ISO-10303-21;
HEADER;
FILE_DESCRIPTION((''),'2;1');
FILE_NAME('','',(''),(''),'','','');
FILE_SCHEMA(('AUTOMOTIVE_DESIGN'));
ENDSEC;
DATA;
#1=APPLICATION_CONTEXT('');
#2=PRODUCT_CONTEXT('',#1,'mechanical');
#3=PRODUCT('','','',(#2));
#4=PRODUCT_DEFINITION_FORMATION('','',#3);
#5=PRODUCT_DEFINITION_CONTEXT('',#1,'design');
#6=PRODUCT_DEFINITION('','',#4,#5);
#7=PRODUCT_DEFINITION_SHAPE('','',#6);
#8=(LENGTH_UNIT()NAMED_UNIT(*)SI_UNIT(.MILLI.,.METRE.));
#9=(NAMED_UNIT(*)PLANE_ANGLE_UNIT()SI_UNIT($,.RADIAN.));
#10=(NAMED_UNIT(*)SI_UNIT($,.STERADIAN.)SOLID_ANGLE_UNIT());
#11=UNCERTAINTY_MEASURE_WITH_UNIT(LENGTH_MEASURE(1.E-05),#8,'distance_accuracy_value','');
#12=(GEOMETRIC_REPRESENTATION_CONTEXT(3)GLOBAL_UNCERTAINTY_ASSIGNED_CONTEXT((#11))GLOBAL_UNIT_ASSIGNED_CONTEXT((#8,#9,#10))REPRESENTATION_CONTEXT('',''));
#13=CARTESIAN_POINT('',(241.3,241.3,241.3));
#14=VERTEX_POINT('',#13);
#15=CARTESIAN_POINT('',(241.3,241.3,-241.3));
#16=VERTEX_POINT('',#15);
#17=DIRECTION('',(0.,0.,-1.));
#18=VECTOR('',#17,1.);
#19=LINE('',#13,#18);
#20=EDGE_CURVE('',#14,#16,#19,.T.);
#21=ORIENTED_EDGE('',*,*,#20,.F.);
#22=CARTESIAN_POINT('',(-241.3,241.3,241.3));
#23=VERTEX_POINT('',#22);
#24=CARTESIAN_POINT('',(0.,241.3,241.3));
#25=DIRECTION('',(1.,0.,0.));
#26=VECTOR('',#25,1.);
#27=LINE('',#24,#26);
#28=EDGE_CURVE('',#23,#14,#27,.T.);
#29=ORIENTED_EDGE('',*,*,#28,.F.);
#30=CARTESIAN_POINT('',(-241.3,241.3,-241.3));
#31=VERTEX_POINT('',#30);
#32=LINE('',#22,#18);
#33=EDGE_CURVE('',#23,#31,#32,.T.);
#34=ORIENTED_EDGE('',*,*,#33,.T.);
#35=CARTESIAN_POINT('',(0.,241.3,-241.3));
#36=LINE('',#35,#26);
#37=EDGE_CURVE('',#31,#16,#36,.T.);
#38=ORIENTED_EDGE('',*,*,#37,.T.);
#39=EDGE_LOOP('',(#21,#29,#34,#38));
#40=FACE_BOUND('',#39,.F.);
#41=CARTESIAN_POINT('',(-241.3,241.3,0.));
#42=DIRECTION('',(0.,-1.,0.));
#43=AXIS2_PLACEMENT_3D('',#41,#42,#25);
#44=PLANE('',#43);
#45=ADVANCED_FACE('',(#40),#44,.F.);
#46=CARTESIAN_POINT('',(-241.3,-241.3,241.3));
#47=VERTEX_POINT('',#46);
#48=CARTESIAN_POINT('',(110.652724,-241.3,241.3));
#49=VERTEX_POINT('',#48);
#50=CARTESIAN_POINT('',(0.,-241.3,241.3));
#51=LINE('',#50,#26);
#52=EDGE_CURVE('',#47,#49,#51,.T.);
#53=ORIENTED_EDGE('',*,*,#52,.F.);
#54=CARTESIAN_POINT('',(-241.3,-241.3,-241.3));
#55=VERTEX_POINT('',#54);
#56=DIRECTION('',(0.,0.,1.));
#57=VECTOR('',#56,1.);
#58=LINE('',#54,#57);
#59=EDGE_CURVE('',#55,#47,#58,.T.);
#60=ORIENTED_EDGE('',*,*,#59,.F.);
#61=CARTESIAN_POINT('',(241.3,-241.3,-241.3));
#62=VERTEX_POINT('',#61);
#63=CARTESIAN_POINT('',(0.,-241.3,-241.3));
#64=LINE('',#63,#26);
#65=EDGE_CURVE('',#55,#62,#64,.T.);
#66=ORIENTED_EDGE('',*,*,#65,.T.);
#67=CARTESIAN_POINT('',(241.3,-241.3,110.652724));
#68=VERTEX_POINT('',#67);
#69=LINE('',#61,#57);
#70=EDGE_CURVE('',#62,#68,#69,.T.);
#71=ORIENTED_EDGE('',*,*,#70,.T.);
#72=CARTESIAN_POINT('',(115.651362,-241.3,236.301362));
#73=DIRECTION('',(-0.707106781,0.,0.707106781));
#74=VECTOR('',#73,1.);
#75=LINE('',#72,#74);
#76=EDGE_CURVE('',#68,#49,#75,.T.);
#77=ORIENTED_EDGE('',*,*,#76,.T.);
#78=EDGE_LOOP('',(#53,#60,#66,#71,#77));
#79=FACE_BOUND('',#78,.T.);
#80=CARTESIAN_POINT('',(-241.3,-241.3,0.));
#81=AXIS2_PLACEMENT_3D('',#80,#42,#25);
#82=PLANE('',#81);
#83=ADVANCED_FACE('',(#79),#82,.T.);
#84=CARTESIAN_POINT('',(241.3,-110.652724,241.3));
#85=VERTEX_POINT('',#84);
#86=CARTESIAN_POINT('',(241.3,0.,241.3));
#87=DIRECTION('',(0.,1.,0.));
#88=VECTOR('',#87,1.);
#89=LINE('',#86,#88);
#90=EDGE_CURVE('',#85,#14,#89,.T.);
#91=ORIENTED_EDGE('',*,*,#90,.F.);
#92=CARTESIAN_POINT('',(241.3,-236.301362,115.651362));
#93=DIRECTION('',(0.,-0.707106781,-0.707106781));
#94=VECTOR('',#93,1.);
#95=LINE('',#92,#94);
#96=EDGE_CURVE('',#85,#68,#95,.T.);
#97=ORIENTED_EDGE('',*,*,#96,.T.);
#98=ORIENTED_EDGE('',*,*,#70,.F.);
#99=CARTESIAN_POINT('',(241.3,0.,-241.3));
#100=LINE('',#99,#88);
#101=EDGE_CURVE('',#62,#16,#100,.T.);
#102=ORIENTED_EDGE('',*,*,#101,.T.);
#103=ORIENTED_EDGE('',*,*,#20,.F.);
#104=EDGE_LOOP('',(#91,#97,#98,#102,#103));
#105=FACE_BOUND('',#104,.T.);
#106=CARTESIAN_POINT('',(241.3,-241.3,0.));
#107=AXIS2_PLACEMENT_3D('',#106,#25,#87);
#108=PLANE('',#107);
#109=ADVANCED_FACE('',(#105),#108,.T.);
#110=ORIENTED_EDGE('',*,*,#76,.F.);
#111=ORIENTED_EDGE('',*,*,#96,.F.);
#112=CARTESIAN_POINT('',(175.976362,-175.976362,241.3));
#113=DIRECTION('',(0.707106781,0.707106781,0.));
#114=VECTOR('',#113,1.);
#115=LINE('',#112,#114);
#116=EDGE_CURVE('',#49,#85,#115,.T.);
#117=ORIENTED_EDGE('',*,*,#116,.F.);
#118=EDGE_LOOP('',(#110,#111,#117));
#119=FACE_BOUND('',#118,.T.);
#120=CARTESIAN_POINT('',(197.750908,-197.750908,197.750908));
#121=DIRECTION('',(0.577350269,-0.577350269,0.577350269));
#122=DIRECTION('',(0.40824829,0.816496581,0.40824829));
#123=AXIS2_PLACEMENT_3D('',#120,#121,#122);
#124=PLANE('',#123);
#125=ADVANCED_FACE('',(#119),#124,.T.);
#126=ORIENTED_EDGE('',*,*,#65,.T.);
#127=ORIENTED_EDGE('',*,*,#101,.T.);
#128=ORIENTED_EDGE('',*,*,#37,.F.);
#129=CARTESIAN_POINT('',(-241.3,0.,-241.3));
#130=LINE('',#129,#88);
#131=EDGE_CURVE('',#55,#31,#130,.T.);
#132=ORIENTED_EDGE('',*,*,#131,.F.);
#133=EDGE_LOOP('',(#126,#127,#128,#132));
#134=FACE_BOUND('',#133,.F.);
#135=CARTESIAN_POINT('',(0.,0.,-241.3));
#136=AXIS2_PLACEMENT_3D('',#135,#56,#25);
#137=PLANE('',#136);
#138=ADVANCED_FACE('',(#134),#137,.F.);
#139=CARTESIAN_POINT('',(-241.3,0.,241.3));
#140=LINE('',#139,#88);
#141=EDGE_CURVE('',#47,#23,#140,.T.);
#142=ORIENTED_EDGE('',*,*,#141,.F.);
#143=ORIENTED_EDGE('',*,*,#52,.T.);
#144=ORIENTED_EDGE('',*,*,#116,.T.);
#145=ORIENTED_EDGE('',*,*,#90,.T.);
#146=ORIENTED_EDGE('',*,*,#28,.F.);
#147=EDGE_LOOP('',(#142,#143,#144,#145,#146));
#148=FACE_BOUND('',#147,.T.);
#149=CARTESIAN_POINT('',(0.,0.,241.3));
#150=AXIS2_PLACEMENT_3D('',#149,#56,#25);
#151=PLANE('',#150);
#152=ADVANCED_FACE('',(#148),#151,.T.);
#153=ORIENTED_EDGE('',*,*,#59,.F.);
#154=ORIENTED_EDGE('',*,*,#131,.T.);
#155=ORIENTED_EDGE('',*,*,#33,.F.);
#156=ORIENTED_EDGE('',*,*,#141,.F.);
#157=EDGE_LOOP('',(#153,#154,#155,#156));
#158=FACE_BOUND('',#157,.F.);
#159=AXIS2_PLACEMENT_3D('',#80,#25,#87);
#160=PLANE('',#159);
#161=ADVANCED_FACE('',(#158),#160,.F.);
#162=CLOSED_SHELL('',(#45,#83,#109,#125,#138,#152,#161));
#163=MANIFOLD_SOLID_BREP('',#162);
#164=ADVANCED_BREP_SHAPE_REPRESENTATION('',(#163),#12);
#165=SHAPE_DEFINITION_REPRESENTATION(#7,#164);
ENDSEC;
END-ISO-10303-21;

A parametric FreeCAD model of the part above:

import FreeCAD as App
import Part
import Sketcher
Q = App.Units.Quantity


def add_polygon(sketch, points):
    """Adds a closed chain of lines whose ends are joined by coincident constraints."""
    first, n = sketch.GeometryCount, len(points)
    for a, b in zip(points, points[1:] + points[:1]):
        sketch.addGeometry(Part.LineSegment(App.Vector(*a, 0), App.Vector(*b, 0)), False)
    for i in range(n):
        sketch.addConstraint(Sketcher.Constraint("Coincident", first + i, 2, first + (i + 1) % n, 1))

doc = App.newDocument("Part")
body = doc.addObject("PartDesign::Body", "Body")

# Sketch on XY plane
sketch1 = doc.addObject("Sketcher::SketchObject", "Sketch")
body.addObject(sketch1)
sketch1.AttachmentSupport = (doc.XY_Plane, [""])
sketch1.MapMode = "FlatFace"
add_polygon(sketch1, [(-241.3, 241.3), (-241.3, -241.3), (241.3, -241.3), (241.3, 241.3)])  # lines 0-3
sketch1.addConstraint(Sketcher.Constraint("Vertical", 0))
sketch1.addConstraint(Sketcher.Constraint("Horizontal", 1))
sketch1.addConstraint(Sketcher.Constraint("Vertical", 2))
sketch1.addConstraint(Sketcher.Constraint("Horizontal", 3))
sketch1.addConstraint(Sketcher.Constraint("Symmetric", 0, 2, 2, 2, -1, 1))
sketch1.addConstraint(Sketcher.Constraint("Equal", 3, 0))
sketch1.addConstraint(Sketcher.Constraint("DistanceX", 1, 1, 1, 2, Q("19 in")))
pad1 = doc.addObject("PartDesign::Pad", "Pad")
body.addObject(pad1)
pad1.Profile = sketch1
pad1.Length = Q("19 in")
pad1.Midplane = True

# Sketch on an angled plane
sketch2 = doc.addObject("Sketcher::SketchObject", "Sketch001")
body.addObject(sketch2)
sketch2.Placement = App.Placement(App.Vector(197.750908, -197.750908, 197.750908), App.Rotation(App.Vector(0.40824829, 0.816496581, 0.40824829), App.Vector(-0.707106781, 0, 0.707106781), App.Vector(0.577350269, -0.577350269, 0.577350269), "ZXY"))
add_polygon(sketch2, [(394.04125, 0), (-197.020625, 341.249732), (-197.020625, -341.249732)])  # lines 0-2
sketch2.addConstraint(Sketcher.Constraint("Vertical", 1))
sketch2.addConstraint(Sketcher.Constraint("PointOnObject", 2, 2, -1))
sketch2.addConstraint(Sketcher.Constraint("Equal", 0, 2))
sketch2.addConstraint(Sketcher.Constraint("Angle", 0, Q("150 deg")))
sketch2.addConstraint(Sketcher.Constraint("DistanceY", 1, 2, 1, 1, Q("682.499464 mm")))
sketch2.addConstraint(Sketcher.Constraint("DistanceX", -1, 1, 2, 2, Q("394.04125 mm")))
pocket1 = doc.addObject("PartDesign::Pocket", "Pocket")
body.addObject(pocket1)
pocket1.Profile = sketch2
pocket1.Length = Q("3 in")
pocket1.Reversed = True

doc.recompute()
